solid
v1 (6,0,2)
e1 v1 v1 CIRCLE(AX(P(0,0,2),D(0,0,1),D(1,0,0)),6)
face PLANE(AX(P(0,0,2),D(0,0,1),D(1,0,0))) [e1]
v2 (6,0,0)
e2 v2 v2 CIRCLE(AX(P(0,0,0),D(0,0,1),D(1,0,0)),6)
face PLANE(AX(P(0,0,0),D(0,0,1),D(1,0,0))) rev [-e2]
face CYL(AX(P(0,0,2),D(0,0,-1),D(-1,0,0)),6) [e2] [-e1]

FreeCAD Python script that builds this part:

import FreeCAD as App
import Part
import Sketcher
from FreeCAD import Vector
Q = App.Units.Quantity

doc = App.newDocument("Part")
body = doc.addObject("PartDesign::Body", "Body")

sketch1 = doc.addObject("Sketcher::SketchObject", "Sketch")
body.addObject(sketch1)
sketch1.AttachmentSupport = (doc.XY_Plane, [""])
sketch1.MapMode = "FlatFace"
sketch1.addGeometry(Part.Circle(Vector(0, 0, 0), Vector(0, 0, 1), 6), False)
sketch1.addConstraint(Sketcher.Constraint("Coincident", 0, 3, -1, 1))
sketch1.addConstraint(Sketcher.Constraint("Diameter", 0, Q("12 mm")))
pad1 = doc.addObject("PartDesign::Pad", "Pad")
body.addObject(pad1)
pad1.Profile = sketch1
pad1.Length = 2

doc.recompute()
